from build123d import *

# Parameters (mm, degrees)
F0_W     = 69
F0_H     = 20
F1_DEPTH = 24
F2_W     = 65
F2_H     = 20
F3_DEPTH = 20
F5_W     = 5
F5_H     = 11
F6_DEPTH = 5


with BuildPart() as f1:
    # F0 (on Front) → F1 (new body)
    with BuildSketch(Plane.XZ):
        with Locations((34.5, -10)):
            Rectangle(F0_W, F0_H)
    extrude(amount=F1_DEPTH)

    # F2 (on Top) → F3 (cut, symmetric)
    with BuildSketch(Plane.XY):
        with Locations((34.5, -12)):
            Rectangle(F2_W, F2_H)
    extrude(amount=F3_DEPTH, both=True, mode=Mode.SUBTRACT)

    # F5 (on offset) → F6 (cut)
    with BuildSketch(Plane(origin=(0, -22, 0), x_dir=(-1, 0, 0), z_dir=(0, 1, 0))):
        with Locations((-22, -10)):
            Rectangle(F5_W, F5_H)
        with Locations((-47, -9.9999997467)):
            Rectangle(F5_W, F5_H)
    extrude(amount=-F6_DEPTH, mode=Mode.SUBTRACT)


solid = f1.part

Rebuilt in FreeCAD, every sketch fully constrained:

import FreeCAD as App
import Part
import Sketcher

V = App.Vector

doc = App.newDocument("Part")
body = doc.addObject("PartDesign::Body", "Body")

# Sketch on XZ plane
sketch1 = body.newObject("Sketcher::SketchObject", "Sketch")
sketch1.AttachmentSupport = (doc.getObject("XZ_Plane"), [""])
sketch1.MapMode = "FlatFace"
sketch1.addGeometry(Part.LineSegment(V(0, 0, 0), V(0, -20, 0)), False)
sketch1.addGeometry(Part.LineSegment(V(0, -20, 0), V(69, -20, 0)), False)
sketch1.addGeometry(Part.LineSegment(V(69, -20, 0), V(69, 0, 0)), False)
sketch1.addGeometry(Part.LineSegment(V(69, 0, 0), V(0, 0, 0)), False)
sketch1.addConstraint(Sketcher.Constraint("Coincident", 0, 2, 1, 1))
sketch1.addConstraint(Sketcher.Constraint("Coincident", 1, 2, 2, 1))
sketch1.addConstraint(Sketcher.Constraint("Coincident", 2, 2, 3, 1))
sketch1.addConstraint(Sketcher.Constraint("Coincident", 3, 2, 0, 1))
sketch1.addConstraint(Sketcher.Constraint("Vertical", 0))
sketch1.addConstraint(Sketcher.Constraint("Horizontal", 1))
sketch1.addConstraint(Sketcher.Constraint("Vertical", 2))
sketch1.addConstraint(Sketcher.Constraint("Horizontal", 3))
sketch1.addConstraint(Sketcher.Constraint("Coincident", 3, 2, -1, 1))
sketch1.addConstraint(Sketcher.Constraint("DistanceX", 1, 1, 1, 2, 69.0))
sketch1.addConstraint(Sketcher.Constraint("DistanceY", 0, 2, 0, 1, 20.0))
pad1 = body.newObject("PartDesign::Pad", "Pad")
pad1.Profile = sketch1
pad1.Length = 24

# Sketch on XY plane
sketch2 = body.newObject("Sketcher::SketchObject", "Sketch001")
sketch2.AttachmentSupport = (doc.getObject("XY_Plane"), [""])
sketch2.MapMode = "FlatFace"
sketch2.addGeometry(Part.LineSegment(V(2, -2, 0), V(2, -22, 0)), False)
sketch2.addGeometry(Part.LineSegment(V(2, -22, 0), V(67, -22, 0)), False)
sketch2.addGeometry(Part.LineSegment(V(67, -22, 0), V(67, -2, 0)), False)
sketch2.addGeometry(Part.LineSegment(V(67, -2, 0), V(2, -2, 0)), False)
sketch2.addConstraint(Sketcher.Constraint("Coincident", 0, 2, 1, 1))
sketch2.addConstraint(Sketcher.Constraint("Coincident", 1, 2, 2, 1))
sketch2.addConstraint(Sketcher.Constraint("Coincident", 2, 2, 3, 1))
sketch2.addConstraint(Sketcher.Constraint("Coincident", 3, 2, 0, 1))
sketch2.addConstraint(Sketcher.Constraint("Vertical", 0))
sketch2.addConstraint(Sketcher.Constraint("Horizontal", 1))
sketch2.addConstraint(Sketcher.Constraint("Vertical", 2))
sketch2.addConstraint(Sketcher.Constraint("Horizontal", 3))
sketch2.addConstraint(Sketcher.Constraint("DistanceX", 1, 1, 1, 2, 65.0))
sketch2.addConstraint(Sketcher.Constraint("DistanceY", 0, 2, 0, 1, 20.0))
sketch2.addConstraint(Sketcher.Constraint("DistanceX", -1, 1, 0, 2, 2.0))
sketch2.addConstraint(Sketcher.Constraint("DistanceY", 0, 2, -1, 1, 22.0))
pocket1 = body.newObject("PartDesign::Pocket", "Pocket")
pocket1.Profile = sketch2
pocket1.Length = 40
pocket1.Midplane = True

# Sketch on XZ plane
sketch3 = body.newObject("Sketcher::SketchObject", "Sketch002")
sketch3.AttachmentSupport = (doc.getObject("XZ_Plane"), [""])
sketch3.MapMode = "FlatFace"
sketch3.AttachmentOffset = App.Placement(V(0, 0, 22), App.Rotation())
sketch3.addGeometry(Part.LineSegment(V(24, -4, 0), V(24, -16, 0)), False)
sketch3.addGeometry(Part.LineSegment(V(24, -16, 0), V(20, -16, 0)), False)
sketch3.addGeometry(Part.LineSegment(V(20, -16, 0), V(20, -4, 0)), False)
sketch3.addGeometry(Part.LineSegment(V(20, -4, 0), V(24, -4, 0)), False)
sketch3.addGeometry(Part.LineSegment(V(50, -4, 0), V(50, -15, 0)), False)
sketch3.addGeometry(Part.LineSegment(V(50, -15, 0), V(44, -15, 0)), False)
sketch3.addGeometry(Part.LineSegment(V(44, -15, 0), V(44, -4, 0)), False)
sketch3.addGeometry(Part.LineSegment(V(44, -4, 0), V(50, -4, 0)), False)
sketch3.addConstraint(Sketcher.Constraint("Coincident", 0, 2, 1, 1))
sketch3.addConstraint(Sketcher.Constraint("Coincident", 1, 2, 2, 1))
sketch3.addConstraint(Sketcher.Constraint("Coincident", 2, 2, 3, 1))
sketch3.addConstraint(Sketcher.Constraint("Coincident", 3, 2, 0, 1))
sketch3.addConstraint(Sketcher.Constraint("Coincident", 4, 2, 5, 1))
sketch3.addConstraint(Sketcher.Constraint("Coincident", 5, 2, 6, 1))
sketch3.addConstraint(Sketcher.Constraint("Coincident", 6, 2, 7, 1))
sketch3.addConstraint(Sketcher.Constraint("Coincident", 7, 2, 4, 1))
sketch3.addConstraint(Sketcher.Constraint("Vertical", 0))
sketch3.addConstraint(Sketcher.Constraint("Horizontal", 1))
sketch3.addConstraint(Sketcher.Constraint("Vertical", 2))
sketch3.addConstraint(Sketcher.Constraint("Horizontal", 3))
sketch3.addConstraint(Sketcher.Constraint("Vertical", 4))
sketch3.addConstraint(Sketcher.Constraint("Horizontal", 5))
sketch3.addConstraint(Sketcher.Constraint("Vertical", 6))
sketch3.addConstraint(Sketcher.Constraint("Horizontal", 7))
sketch3.addConstraint(Sketcher.Constraint("Horizontal", 1, 2, 4, 2))
sketch3.addConstraint(Sketcher.Constraint("Horizontal", 3, 2, 6, 2))
sketch3.addConstraint(Sketcher.Constraint("Equal", 3, 5))
sketch3.addConstraint(Sketcher.Constraint("DistanceX", 1, 2, 1, 1, 5.0))
sketch3.addConstraint(Sketcher.Constraint("DistanceY", 0, 2, 0, 1, 11.0))
sketch3.addConstraint(Sketcher.Constraint("DistanceX", 0, 2, 4, 2, 25.0))
sketch3.addConstraint(Sketcher.Constraint("DistanceX", -1, 1, 0, 2, 24.5))
sketch3.addConstraint(Sketcher.Constraint("DistanceY", 0, 2, -1, 1, 15.5))
pocket2 = body.newObject("PartDesign::Pocket", "Pocket001")
pocket2.Profile = sketch3
pocket2.Length = 5
pocket2.Reversed = True

doc.recompute()
